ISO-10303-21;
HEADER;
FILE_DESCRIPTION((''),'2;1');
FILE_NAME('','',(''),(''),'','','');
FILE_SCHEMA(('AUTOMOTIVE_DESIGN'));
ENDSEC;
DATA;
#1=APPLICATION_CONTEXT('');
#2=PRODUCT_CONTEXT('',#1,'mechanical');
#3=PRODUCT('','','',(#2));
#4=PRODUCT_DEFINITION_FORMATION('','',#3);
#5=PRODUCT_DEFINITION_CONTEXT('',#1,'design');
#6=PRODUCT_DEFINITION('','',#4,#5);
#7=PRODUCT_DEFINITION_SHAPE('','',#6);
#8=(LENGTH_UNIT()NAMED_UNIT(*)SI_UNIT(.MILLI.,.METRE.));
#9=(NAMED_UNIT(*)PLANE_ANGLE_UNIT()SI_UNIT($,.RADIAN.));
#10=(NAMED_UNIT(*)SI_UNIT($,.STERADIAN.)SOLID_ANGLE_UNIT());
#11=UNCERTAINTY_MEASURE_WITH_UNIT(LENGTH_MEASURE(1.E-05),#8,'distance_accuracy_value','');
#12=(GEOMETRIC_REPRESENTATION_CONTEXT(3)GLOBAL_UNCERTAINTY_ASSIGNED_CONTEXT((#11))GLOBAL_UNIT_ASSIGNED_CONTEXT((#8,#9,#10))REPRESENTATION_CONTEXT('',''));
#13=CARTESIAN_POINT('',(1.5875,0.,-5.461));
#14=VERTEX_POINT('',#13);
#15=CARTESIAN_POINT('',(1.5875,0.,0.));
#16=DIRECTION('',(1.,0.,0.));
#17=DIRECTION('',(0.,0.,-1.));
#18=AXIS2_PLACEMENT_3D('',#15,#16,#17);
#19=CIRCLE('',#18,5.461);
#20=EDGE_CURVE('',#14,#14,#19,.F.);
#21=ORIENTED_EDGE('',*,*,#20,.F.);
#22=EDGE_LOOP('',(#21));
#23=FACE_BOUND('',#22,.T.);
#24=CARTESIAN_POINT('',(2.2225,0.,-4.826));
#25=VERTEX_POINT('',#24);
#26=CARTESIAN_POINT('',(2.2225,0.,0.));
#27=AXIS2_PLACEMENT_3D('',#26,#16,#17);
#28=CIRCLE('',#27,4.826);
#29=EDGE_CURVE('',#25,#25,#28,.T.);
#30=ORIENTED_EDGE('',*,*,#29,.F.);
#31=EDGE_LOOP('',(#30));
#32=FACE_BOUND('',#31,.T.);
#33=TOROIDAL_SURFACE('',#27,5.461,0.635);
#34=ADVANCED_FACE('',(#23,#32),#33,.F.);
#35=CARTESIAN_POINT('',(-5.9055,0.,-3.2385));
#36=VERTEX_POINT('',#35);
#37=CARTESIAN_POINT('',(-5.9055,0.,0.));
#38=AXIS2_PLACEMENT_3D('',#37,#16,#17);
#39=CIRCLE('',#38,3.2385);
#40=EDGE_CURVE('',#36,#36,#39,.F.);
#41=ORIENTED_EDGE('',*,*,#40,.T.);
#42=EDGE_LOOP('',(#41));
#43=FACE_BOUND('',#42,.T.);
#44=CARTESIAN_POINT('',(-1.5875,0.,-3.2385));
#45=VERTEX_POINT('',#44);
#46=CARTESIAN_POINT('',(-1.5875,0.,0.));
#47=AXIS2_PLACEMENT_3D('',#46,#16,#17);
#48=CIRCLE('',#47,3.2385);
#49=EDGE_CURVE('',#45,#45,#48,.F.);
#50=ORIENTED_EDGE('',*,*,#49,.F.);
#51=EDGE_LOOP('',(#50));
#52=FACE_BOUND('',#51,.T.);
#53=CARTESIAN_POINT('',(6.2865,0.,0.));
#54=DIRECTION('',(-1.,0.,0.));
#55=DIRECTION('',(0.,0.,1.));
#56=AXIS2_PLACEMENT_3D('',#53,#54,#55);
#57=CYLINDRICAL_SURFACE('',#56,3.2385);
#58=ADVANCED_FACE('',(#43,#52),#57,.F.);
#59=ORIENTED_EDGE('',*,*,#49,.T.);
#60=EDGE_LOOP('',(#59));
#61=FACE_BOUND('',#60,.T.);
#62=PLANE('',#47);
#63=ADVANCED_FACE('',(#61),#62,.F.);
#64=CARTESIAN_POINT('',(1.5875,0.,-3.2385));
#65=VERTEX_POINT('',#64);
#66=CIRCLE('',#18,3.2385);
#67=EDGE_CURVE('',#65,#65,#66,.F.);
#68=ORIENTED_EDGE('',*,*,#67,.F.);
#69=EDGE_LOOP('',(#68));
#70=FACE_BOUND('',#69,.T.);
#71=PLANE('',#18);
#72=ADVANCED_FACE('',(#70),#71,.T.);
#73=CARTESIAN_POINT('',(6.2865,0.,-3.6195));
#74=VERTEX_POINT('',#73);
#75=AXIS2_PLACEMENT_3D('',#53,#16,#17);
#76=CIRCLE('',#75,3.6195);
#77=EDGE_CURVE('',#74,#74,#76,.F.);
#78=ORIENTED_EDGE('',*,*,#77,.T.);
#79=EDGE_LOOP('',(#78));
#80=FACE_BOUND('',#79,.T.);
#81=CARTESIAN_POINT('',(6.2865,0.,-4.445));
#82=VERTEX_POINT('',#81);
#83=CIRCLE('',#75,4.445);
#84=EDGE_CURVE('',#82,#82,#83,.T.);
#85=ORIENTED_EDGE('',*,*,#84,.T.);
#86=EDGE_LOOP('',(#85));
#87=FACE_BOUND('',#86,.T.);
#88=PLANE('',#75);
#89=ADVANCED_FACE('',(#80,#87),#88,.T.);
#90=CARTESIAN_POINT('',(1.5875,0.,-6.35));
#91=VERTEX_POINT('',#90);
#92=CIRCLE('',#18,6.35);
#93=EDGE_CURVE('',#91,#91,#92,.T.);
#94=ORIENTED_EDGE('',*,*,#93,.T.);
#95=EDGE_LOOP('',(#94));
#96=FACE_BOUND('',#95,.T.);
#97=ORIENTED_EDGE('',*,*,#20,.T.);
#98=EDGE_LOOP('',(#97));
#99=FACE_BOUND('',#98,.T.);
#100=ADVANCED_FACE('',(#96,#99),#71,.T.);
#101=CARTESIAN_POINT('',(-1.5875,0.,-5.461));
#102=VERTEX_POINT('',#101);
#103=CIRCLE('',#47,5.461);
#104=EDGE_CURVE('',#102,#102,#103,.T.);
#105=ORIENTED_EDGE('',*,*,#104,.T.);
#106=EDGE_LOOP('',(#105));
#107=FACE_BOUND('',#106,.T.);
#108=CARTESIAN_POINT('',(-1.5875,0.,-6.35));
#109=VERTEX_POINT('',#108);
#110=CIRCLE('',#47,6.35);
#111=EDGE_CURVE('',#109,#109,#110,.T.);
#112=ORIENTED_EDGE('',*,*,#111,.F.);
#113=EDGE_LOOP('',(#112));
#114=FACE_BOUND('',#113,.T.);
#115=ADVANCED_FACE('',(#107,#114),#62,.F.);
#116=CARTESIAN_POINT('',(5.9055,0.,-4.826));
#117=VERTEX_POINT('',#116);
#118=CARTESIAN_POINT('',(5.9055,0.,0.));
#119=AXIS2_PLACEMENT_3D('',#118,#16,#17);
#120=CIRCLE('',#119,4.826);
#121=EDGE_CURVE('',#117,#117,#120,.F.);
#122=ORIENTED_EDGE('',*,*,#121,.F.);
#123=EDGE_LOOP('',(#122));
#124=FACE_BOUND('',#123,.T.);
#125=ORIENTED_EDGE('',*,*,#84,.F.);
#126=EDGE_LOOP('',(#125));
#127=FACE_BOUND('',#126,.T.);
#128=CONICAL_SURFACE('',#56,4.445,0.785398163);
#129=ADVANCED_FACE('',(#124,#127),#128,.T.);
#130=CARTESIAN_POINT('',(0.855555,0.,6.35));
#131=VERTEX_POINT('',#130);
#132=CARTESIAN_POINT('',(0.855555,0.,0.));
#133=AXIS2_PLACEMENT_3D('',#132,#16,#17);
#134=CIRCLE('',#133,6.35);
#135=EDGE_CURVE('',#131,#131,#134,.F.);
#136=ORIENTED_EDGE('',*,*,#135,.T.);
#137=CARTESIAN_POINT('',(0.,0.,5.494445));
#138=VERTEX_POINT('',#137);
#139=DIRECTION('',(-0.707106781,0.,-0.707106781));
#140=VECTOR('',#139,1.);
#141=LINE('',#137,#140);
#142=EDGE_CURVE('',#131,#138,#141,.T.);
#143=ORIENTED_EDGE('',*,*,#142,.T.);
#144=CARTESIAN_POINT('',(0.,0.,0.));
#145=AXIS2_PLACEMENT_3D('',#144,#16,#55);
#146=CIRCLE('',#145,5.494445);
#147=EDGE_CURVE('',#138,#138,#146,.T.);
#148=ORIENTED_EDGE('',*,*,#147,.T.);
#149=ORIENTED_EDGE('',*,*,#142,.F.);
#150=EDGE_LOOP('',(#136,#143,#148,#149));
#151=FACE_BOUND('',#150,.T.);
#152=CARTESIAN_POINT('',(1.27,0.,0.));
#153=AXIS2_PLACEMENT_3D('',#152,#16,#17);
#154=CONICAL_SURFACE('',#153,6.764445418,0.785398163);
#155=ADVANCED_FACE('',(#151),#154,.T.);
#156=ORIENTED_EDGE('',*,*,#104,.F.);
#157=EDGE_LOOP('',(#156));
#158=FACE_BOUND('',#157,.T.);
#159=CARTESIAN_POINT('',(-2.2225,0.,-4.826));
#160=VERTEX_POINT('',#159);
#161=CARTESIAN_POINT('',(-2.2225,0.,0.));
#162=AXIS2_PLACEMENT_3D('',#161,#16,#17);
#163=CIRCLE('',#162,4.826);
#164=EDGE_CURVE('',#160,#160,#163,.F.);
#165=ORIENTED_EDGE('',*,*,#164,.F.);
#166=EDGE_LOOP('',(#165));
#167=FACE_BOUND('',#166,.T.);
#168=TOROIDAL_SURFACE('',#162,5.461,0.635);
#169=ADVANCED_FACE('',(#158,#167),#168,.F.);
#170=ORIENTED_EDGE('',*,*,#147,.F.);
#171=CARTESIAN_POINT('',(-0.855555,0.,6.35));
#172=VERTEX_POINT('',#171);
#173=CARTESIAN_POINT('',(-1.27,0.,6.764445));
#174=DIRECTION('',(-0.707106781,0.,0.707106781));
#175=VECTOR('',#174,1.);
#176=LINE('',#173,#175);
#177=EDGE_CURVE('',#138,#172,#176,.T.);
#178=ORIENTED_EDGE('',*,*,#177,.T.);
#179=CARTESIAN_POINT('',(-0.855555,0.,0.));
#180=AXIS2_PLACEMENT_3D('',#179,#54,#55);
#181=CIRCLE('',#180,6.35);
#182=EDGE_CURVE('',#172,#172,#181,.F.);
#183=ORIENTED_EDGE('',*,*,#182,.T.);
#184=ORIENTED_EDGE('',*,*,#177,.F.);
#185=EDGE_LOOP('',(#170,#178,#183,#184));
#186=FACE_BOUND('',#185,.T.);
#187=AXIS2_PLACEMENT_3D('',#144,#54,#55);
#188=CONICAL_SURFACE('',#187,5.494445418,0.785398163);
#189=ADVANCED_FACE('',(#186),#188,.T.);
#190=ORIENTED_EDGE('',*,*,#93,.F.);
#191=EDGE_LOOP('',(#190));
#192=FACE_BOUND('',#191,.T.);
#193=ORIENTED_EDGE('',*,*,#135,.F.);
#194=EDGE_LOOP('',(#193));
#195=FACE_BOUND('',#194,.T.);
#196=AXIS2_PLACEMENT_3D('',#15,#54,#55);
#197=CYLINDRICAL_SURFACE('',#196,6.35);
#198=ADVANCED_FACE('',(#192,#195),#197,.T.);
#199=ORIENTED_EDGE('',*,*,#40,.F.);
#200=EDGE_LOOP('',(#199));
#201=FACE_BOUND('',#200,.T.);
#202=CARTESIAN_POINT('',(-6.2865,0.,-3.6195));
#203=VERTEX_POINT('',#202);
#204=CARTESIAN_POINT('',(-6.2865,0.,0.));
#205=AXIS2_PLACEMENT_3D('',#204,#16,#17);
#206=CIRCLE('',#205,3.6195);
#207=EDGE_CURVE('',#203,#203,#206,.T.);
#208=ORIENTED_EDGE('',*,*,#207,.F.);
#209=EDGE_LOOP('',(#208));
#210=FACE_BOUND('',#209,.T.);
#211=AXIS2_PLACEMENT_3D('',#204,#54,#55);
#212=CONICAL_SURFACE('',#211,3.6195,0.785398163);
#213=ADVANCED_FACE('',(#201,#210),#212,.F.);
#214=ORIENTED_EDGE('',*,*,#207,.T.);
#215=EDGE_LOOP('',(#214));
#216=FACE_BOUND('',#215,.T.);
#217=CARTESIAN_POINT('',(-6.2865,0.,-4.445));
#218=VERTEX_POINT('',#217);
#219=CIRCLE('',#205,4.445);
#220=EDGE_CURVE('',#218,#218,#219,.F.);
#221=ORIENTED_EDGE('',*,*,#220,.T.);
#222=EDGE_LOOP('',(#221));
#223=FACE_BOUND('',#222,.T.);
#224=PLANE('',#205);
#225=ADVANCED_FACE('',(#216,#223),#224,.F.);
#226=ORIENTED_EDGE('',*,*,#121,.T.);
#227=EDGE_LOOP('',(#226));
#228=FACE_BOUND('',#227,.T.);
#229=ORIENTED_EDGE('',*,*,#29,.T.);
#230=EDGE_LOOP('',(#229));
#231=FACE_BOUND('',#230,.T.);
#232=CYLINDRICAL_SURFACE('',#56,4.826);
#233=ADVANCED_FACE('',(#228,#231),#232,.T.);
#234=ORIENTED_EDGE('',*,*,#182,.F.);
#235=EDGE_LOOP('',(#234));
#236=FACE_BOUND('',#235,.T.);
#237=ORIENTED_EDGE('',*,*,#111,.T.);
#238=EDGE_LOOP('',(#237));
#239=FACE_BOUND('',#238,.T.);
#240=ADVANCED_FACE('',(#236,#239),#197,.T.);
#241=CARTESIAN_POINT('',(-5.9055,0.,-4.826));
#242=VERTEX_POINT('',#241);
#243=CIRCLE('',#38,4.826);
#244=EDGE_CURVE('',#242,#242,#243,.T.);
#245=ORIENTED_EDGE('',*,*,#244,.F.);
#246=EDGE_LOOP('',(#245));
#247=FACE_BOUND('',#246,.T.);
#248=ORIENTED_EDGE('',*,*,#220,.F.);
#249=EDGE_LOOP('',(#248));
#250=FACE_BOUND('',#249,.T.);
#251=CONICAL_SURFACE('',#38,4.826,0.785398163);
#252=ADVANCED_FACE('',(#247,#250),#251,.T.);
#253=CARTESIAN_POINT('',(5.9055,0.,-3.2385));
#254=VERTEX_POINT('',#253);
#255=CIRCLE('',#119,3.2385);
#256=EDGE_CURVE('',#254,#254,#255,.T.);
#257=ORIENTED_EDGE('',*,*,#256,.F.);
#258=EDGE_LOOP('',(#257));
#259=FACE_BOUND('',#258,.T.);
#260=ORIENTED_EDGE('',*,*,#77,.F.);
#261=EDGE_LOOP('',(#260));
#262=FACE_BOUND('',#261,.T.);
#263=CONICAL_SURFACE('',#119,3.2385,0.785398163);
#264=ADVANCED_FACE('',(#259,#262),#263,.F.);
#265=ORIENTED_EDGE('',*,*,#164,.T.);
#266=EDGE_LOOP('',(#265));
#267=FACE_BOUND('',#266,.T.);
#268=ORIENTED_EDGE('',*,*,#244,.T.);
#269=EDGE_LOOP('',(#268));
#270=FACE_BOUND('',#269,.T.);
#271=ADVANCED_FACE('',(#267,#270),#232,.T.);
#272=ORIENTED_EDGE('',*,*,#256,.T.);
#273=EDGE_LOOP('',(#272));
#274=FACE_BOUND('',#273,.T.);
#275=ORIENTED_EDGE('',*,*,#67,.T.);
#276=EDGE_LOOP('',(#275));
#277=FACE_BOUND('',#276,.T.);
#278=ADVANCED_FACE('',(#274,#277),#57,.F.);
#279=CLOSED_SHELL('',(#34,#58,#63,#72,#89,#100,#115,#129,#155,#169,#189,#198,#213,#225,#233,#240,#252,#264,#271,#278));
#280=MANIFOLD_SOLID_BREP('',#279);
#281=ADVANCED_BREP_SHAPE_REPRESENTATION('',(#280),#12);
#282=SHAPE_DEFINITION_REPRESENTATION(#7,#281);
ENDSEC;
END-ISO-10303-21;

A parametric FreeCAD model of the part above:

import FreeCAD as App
import Part
import Sketcher
Q = App.Units.Quantity


def edges_at(feature, points):
    """Names of the edges that pass closest to the given points."""
    edges = feature.Shape.Edges
    near = lambda p: min(range(len(edges)), key=lambda i: edges[i].distToShape(Part.Vertex(*p))[0])
    return sorted({f"Edge{near(p) + 1}" for p in points})


def add_polygon(sketch, points):
    """Adds a closed chain of lines whose ends are joined by coincident constraints."""
    first, n = sketch.GeometryCount, len(points)
    for a, b in zip(points, points[1:] + points[:1]):
        sketch.addGeometry(Part.LineSegment(App.Vector(*a, 0), App.Vector(*b, 0)), False)
    for i in range(n):
        sketch.addConstraint(Sketcher.Constraint("Coincident", first + i, 2, first + (i + 1) % n, 1))

doc = App.newDocument("Part")
body = doc.addObject("PartDesign::Body", "Body")

# Sketch on YZ plane
sketch1 = doc.addObject("Sketcher::SketchObject", "Sketch")
body.addObject(sketch1)
sketch1.AttachmentSupport = (doc.YZ_Plane, [""])
sketch1.MapMode = "FlatFace"
sketch1.addGeometry(Part.Circle(App.Vector(0, 0, 0), App.Vector(0, 0, 1), 6), False)
sketch1.addConstraint([
    Sketcher.Constraint("Coincident", 0, 3, -1, 1),
    Sketcher.Constraint("Diameter", 0, Q("0.5 in")),
])
pad1 = doc.addObject("PartDesign::Pad", "Pad")
body.addObject(pad1)
pad1.Profile = sketch1
pad1.Length = Q("0.125 in")
pad1.Midplane = True

# Sketch on YZ plane
sketch2 = doc.addObject("Sketcher::SketchObject", "Sketch001")
body.addObject(sketch2)
sketch2.AttachmentSupport = (doc.YZ_Plane, [""])
sketch2.MapMode = "FlatFace"
sketch2.addGeometry([
    Part.Circle(App.Vector(0, 0, 0), App.Vector(0, 0, 1), 4.8),
    Part.Circle(App.Vector(0, 0, 0), App.Vector(0, 0, 1), 3.2),
], False)
sketch2.addConstraint([
    Sketcher.Constraint("Coincident", 0, 3, -1, 1),
    Sketcher.Constraint("Coincident", 1, 3, -1, 1),
    Sketcher.Constraint("Diameter", 0, Q("0.38 in")),
    Sketcher.Constraint("Diameter", 1, Q("0.255 in")),
])
pad2 = doc.addObject("PartDesign::Pad", "Pad001")
body.addObject(pad2)
pad2.Profile = sketch2
pad2.Length = Q("0.495 in")
pad2.Midplane = True
doc.recompute()

chamfer = doc.addObject("PartDesign::Chamfer", "Chamfer")
body.addObject(chamfer)
chamfer.Base = (pad2, edges_at(pad2, [
    (-6.287, 0, 4.826),
    (6.287, 0, 4.826),
    (-6.287, 0, 3.239),
    (6.287, 0, 3.239),
]))
chamfer.Size = Q("0.015 in")
doc.recompute()

fillet = doc.addObject("PartDesign::Fillet", "Fillet")
body.addObject(fillet)
fillet.Base = (chamfer, edges_at(chamfer, [(-1.587, 0, 4.826), (1.587, 0, 4.826)]))
fillet.Radius = Q("0.025 in")

# Sketch on XZ plane
sketch3 = doc.addObject("Sketcher::SketchObject", "Sketch002")
body.addObject(sketch3)
sketch3.AttachmentSupport = (doc.XZ_Plane, [""])
sketch3.MapMode = "FlatFace"
add_polygon(sketch3, [(-1.3, 6.8), (1.3, 6.8), (0, 5.5)])  # lines 0-2
sketch3.addConstraint([
    Sketcher.Constraint("Horizontal", 0),
    Sketcher.Constraint("PointOnObject", 1, 2, -2),
    Sketcher.Constraint("Perpendicular", 1, 2),
    Sketcher.Constraint("Equal", 1, 2),
    Sketcher.Constraint("DistanceX", 0, 1, 0, 2, Q("0.1 in")),
    Sketcher.Constraint("DistanceY", -1, 1, 0, 2, Q("6.764445 mm")),
])

# Sketch on YZ plane
sketch4 = doc.addObject("Sketcher::SketchObject", "Sketch003")
body.addObject(sketch4)
sketch4.AttachmentSupport = (doc.YZ_Plane, [""])
sketch4.MapMode = "FlatFace"
sketch4.addGeometry(Part.Circle(App.Vector(0, 0, 0), App.Vector(0, 0, 1), 6), False)
sketch4.addConstraint([
    Sketcher.Constraint("Coincident", 0, 3, -1, 1),
    Sketcher.Constraint("Diameter", 0, Q("0.5 in")),
])
doc.recompute()

subtractivepipe = doc.addObject("PartDesign::SubtractivePipe", "SubtractivePipe")
body.addObject(subtractivepipe)
subtractivepipe.Profile = sketch3
subtractivepipe.Spine = (sketch4, ["Edge1"])

doc.recompute()
